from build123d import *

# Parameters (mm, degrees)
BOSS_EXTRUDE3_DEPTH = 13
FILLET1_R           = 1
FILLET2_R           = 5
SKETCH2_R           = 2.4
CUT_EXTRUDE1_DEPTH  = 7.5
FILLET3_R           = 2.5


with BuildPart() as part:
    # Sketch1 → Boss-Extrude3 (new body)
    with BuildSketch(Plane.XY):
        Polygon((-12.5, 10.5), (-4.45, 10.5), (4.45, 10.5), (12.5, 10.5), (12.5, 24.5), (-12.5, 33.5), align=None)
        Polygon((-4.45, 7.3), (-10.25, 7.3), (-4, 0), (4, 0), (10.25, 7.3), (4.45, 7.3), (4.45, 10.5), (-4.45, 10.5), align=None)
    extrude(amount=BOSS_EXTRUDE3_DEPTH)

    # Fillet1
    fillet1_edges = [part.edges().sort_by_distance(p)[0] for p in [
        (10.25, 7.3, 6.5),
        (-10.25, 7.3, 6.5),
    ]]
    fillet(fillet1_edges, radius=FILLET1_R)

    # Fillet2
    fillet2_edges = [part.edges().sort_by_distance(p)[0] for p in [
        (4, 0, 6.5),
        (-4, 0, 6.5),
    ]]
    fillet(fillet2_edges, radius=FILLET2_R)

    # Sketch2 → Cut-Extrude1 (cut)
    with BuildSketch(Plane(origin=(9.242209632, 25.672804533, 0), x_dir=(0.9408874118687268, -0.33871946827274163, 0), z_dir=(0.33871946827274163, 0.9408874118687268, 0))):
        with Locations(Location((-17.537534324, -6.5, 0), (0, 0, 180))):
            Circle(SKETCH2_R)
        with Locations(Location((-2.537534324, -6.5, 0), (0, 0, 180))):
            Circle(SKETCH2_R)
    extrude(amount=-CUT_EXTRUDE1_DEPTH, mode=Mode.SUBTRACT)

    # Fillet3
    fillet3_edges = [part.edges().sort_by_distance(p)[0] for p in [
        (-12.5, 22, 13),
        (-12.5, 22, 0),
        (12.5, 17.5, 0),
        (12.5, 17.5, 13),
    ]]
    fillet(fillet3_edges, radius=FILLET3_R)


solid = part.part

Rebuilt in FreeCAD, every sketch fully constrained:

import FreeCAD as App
import Part
import Sketcher
Q = App.Units.Quantity


def edges_at(feature, points):
    """Names of the edges that pass closest to the given points."""
    edges = feature.Shape.Edges
    near = lambda p: min(range(len(edges)), key=lambda i: edges[i].distToShape(Part.Vertex(*p))[0])
    return sorted({f"Edge{near(p) + 1}" for p in points})

doc = App.newDocument("Part")
body = doc.addObject("PartDesign::Body", "Body")

sketch1 = body.newObject("Sketcher::SketchObject", "Sketch")
sketch1.AttachmentSupport = (doc.getObject("XY_Plane"), [""])
sketch1.MapMode = "FlatFace"
sketch1.addGeometry(Part.LineSegment(App.Vector(-12.5, 10.5, 0), App.Vector(-4.45, 10.5, 0)), False)
sketch1.addGeometry(Part.LineSegment(App.Vector(-4.45, 10.5, 0), App.Vector(-4.45, 7.3, 0)), False)
sketch1.addGeometry(Part.LineSegment(App.Vector(-4.45, 7.3, 0), App.Vector(-10.25, 7.3, 0)), False)
sketch1.addGeometry(Part.LineSegment(App.Vector(-10.25, 7.3, 0), App.Vector(-4, 0, 0)), False)
sketch1.addGeometry(Part.LineSegment(App.Vector(-4, 0, 0), App.Vector(4, 0, 0)), False)
sketch1.addGeometry(Part.LineSegment(App.Vector(4, 0, 0), App.Vector(10.25, 7.3, 0)), False)
sketch1.addGeometry(Part.LineSegment(App.Vector(10.25, 7.3, 0), App.Vector(4.45, 7.3, 0)), False)
sketch1.addGeometry(Part.LineSegment(App.Vector(4.45, 7.3, 0), App.Vector(4.45, 10.5, 0)), False)
sketch1.addGeometry(Part.LineSegment(App.Vector(4.45, 10.5, 0), App.Vector(12.5, 10.5, 0)), False)
sketch1.addGeometry(Part.LineSegment(App.Vector(12.5, 10.5, 0), App.Vector(12.5, 24.5, 0)), False)
sketch1.addGeometry(Part.LineSegment(App.Vector(12.5, 24.5, 0), App.Vector(-12.5, 33.5, 0)), False)
sketch1.addGeometry(Part.LineSegment(App.Vector(-12.5, 33.5, 0), App.Vector(-12.5, 10.5, 0)), False)
sketch1.addConstraint(Sketcher.Constraint("Coincident", 0, 2, 1, 1))
sketch1.addConstraint(Sketcher.Constraint("Coincident", 1, 2, 2, 1))
sketch1.addConstraint(Sketcher.Constraint("Coincident", 2, 2, 3, 1))
sketch1.addConstraint(Sketcher.Constraint("Coincident", 3, 2, 4, 1))
sketch1.addConstraint(Sketcher.Constraint("Coincident", 4, 2, 5, 1))
sketch1.addConstraint(Sketcher.Constraint("Coincident", 5, 2, 6, 1))
sketch1.addConstraint(Sketcher.Constraint("Coincident", 6, 2, 7, 1))
sketch1.addConstraint(Sketcher.Constraint("Coincident", 7, 2, 8, 1))
sketch1.addConstraint(Sketcher.Constraint("Coincident", 8, 2, 9, 1))
sketch1.addConstraint(Sketcher.Constraint("Coincident", 9, 2, 10, 1))
sketch1.addConstraint(Sketcher.Constraint("Coincident", 10, 2, 11, 1))
sketch1.addConstraint(Sketcher.Constraint("Coincident", 11, 2, 0, 1))
sketch1.addConstraint(Sketcher.Constraint("Horizontal", 0))
sketch1.addConstraint(Sketcher.Constraint("Vertical", 1))
sketch1.addConstraint(Sketcher.Constraint("Horizontal", 2))
sketch1.addConstraint(Sketcher.Constraint("Horizontal", 4))
sketch1.addConstraint(Sketcher.Constraint("Horizontal", 6))
sketch1.addConstraint(Sketcher.Constraint("Vertical", 7))
sketch1.addConstraint(Sketcher.Constraint("Horizontal", 8))
sketch1.addConstraint(Sketcher.Constraint("Vertical", 9))
sketch1.addConstraint(Sketcher.Constraint("Vertical", 11))
sketch1.addConstraint(Sketcher.Constraint("Symmetric", 3, 2, 4, 2, -1, 1))
sketch1.addConstraint(Sketcher.Constraint("Symmetric", 2, 2, 5, 2, -2))
sketch1.addConstraint(Sketcher.Constraint("Symmetric", 0, 2, 7, 2, -2))
sketch1.addConstraint(Sketcher.Constraint("Equal", 0, 8))
sketch1.addConstraint(Sketcher.Constraint("DistanceX", 4, 1, 4, 2, Q("8 mm")))
sketch1.addConstraint(Sketcher.Constraint("DistanceY", 9, 1, 9, 2, Q("14 mm")))
sketch1.addConstraint(Sketcher.Constraint("DistanceY", 11, 2, 11, 1, Q("23 mm")))
sketch1.addConstraint(Sketcher.Constraint("DistanceX", 2, 2, 2, 1, Q("5.8 mm")))
sketch1.addConstraint(Sketcher.Constraint("DistanceY", 1, 2, 1, 1, Q("3.2 mm")))
sketch1.addConstraint(Sketcher.Constraint("DistanceX", 10, 2, 9, 2, Q("25 mm")))
sketch1.addConstraint(Sketcher.Constraint("DistanceX", 0, 1, 0, 2, Q("8.05 mm")))
sketch1.addConstraint(Sketcher.Constraint("DistanceY", -1, 1, 0, 2, Q("10.5 mm")))
pad1 = body.newObject("PartDesign::Pad", "Pad")
pad1.Profile = sketch1
pad1.Length = 13
doc.recompute()

fillet = body.newObject("PartDesign::Fillet", "Fillet")
fillet.Base = (pad1, edges_at(pad1, [(10.25, 7.3, 6.5), (-10.25, 7.3, 6.5)]))
fillet.Radius = 1
doc.recompute()

fillet2 = body.newObject("PartDesign::Fillet", "Fillet001")
fillet2.Base = (fillet, edges_at(fillet, [(4, 0, 6.5), (-4, 0, 6.5)]))
fillet2.Radius = 5

sketch2 = body.newObject("Sketcher::SketchObject", "Sketch001")
sketch2.Placement = App.Placement(App.Vector(9.24221, 25.672805, 0), App.Rotation(App.Vector(0.940887412, -0.338719468, 0), App.Vector(0, 0, -1), App.Vector(0.338719468, 0.940887412, 0), "ZXY"))
sketch2.addGeometry(Part.Circle(App.Vector(-17.537534, -6.5, 0), App.Vector(0, 0, 1), 2.4), False)
sketch2.addGeometry(Part.Circle(App.Vector(-2.537534, -6.5, 0), App.Vector(0, 0, 1), 2.4), False)
sketch2.addConstraint(Sketcher.Constraint("Equal", 0, 1))
sketch2.addConstraint(Sketcher.Constraint("Horizontal", 0, 3, 1, 3))
sketch2.addConstraint(Sketcher.Constraint("Diameter", 0, Q("4.8 mm")))
sketch2.addConstraint(Sketcher.Constraint("DistanceX", 0, 3, 1, 3, Q("15 mm")))
sketch2.addConstraint(Sketcher.Constraint("DistanceY", 0, 3, -1, 1, Q("6.5 mm")))
sketch2.addConstraint(Sketcher.Constraint("DistanceX", 0, 3, -1, 1, Q("17.537534 mm")))
pocket1 = body.newObject("PartDesign::Pocket", "Pocket")
pocket1.Profile = sketch2
pocket1.Length = 7.5
doc.recompute()

fillet3 = body.newObject("PartDesign::Fillet", "Fillet002")
fillet3.Base = (pocket1, edges_at(pocket1, [
    (-12.5, 22, 13),
    (-12.5, 22, 0),
    (12.5, 17.5, 0),
    (12.5, 17.5, 13),
]))
fillet3.Radius = 2.5

doc.recompute()
